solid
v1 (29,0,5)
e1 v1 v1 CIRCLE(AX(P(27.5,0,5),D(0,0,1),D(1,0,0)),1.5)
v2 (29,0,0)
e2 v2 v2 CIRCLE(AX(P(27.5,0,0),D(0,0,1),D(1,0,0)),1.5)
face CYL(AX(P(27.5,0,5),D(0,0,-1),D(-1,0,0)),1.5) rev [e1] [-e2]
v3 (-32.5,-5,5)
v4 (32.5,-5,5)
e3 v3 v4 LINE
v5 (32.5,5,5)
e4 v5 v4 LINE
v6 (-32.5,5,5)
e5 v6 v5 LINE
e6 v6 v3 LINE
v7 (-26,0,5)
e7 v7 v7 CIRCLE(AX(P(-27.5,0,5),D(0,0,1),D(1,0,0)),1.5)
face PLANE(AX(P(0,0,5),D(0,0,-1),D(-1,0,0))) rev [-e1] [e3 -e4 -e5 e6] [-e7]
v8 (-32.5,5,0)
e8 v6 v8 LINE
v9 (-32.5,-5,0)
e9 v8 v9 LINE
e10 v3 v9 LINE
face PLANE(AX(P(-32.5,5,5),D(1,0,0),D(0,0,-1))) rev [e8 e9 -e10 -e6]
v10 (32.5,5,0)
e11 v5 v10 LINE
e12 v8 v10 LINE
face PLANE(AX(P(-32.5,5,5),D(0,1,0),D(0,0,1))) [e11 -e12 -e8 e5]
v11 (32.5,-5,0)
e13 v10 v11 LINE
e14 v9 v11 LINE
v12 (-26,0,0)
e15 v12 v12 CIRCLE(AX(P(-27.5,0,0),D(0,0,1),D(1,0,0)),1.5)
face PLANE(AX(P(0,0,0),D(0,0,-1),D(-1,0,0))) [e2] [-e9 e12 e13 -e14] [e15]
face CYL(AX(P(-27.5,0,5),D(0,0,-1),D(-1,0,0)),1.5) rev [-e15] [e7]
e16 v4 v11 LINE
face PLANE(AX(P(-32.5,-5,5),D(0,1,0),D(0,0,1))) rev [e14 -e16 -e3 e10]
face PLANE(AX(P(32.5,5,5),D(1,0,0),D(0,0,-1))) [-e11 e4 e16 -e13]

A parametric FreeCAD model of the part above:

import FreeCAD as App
import Part
import Sketcher
Q = App.Units.Quantity


def add_polygon(sketch, points):
    """Adds a closed chain of lines whose ends are joined by coincident constraints."""
    first, n = sketch.GeometryCount, len(points)
    for a, b in zip(points, points[1:] + points[:1]):
        sketch.addGeometry(Part.LineSegment(App.Vector(*a, 0), App.Vector(*b, 0)), False)
    for i in range(n):
        sketch.addConstraint(Sketcher.Constraint("Coincident", first + i, 2, first + (i + 1) % n, 1))

doc = App.newDocument("Part")
params = doc.addObject("Spreadsheet::Sheet", "Params")
for row, (alias, value) in enumerate([
    ("sketch1_diameter", "3 mm"),
    ("sketch1_width", "65 mm"),
    ("sketch1_height", "10 mm"),
    ("pad1_length", "5 mm"),
], start=1):
    params.set(f"A{row}", alias)
    params.set(f"B{row}", "=" + value)
    params.setAlias(f"B{row}", alias)

body = doc.addObject("PartDesign::Body", "Body")

# Sketch on XY plane
sketch1 = body.newObject("Sketcher::SketchObject", "Sketch")
sketch1.AttachmentSupport = (doc.getObject("XY_Plane"), [""])
sketch1.MapMode = "FlatFace"
add_polygon(sketch1, [(-32.5, 5), (-32.5, -5), (32.5, -5), (32.5, 5)])  # lines 0-3
sketch1.addGeometry(Part.Circle(App.Vector(-27.5, 0, 0), App.Vector(0, 0, 1), 1.5), False)  # 4
sketch1.addGeometry(Part.Circle(App.Vector(27.5, 0, 0), App.Vector(0, 0, 1), 1.5), False)  # 5
sketch1.addConstraint([
    Sketcher.Constraint("Vertical", 0),
    Sketcher.Constraint("Horizontal", 1),
    Sketcher.Constraint("Vertical", 2),
    Sketcher.Constraint("Horizontal", 3),
    Sketcher.Constraint("Equal", 4, 5),
    Sketcher.Constraint("Symmetric", 4, 3, 5, 3, -1, 1),
    Sketcher.Constraint("Symmetric", 0, 2, 2, 2, -1, 1),
    Sketcher.Constraint("PointOnObject", 4, 3, -1),
    Sketcher.Constraint("Diameter", 4, Q("3 mm")),
    Sketcher.Constraint("DistanceX", 1, 1, 1, 2, Q("65 mm")),
    Sketcher.Constraint("DistanceY", 0, 2, 0, 1, Q("10 mm")),
    Sketcher.Constraint("DistanceX", 4, 3, 5, 3, Q("55 mm")),
])
sketch1.setExpression("Constraints[12]", "Params.sketch1_diameter")
sketch1.setExpression("Constraints[13]", "Params.sketch1_width")
sketch1.setExpression("Constraints[14]", "Params.sketch1_height")
pad1 = body.newObject("PartDesign::Pad", "Pad")
pad1.Profile = sketch1
pad1.setExpression("Length", "Params.pad1_length")

doc.recompute()
